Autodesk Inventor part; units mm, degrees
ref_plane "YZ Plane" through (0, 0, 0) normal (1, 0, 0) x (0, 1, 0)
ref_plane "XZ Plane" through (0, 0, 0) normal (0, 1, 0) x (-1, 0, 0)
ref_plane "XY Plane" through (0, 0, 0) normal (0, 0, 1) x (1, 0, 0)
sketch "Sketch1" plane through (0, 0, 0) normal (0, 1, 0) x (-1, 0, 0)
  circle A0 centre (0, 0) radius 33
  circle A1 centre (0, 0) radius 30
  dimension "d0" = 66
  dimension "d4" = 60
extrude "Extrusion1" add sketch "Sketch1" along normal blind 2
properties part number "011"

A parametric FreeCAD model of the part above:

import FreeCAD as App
import Part
import Sketcher

doc = App.newDocument("Part")
body = doc.addObject("PartDesign::Body", "Body")

# Sketch on XZ plane
sketch1 = doc.addObject("Sketcher::SketchObject", "Sketch")
body.addObject(sketch1)
sketch1.AttachmentSupport = (doc.XZ_Plane, [""])
sketch1.MapMode = "FlatFace"
sketch1.addGeometry([
    Part.Circle(App.Vector(0, 0, 0), App.Vector(0, 0, 1), 33),
    Part.Circle(App.Vector(0, 0, 0), App.Vector(0, 0, 1), 30),
], False)
sketch1.addConstraint([
    Sketcher.Constraint("Coincident", 0, 3, -1, 1),
    Sketcher.Constraint("Coincident", 1, 3, -1, 1),
    Sketcher.Constraint("Diameter", 0, 66.0),
    Sketcher.Constraint("Diameter", 1, 60.0),
])
pad1 = doc.addObject("PartDesign::Pad", "Pad")
body.addObject(pad1)
pad1.Profile = sketch1
pad1.Length = 2
pad1.Reversed = True

doc.recompute()
